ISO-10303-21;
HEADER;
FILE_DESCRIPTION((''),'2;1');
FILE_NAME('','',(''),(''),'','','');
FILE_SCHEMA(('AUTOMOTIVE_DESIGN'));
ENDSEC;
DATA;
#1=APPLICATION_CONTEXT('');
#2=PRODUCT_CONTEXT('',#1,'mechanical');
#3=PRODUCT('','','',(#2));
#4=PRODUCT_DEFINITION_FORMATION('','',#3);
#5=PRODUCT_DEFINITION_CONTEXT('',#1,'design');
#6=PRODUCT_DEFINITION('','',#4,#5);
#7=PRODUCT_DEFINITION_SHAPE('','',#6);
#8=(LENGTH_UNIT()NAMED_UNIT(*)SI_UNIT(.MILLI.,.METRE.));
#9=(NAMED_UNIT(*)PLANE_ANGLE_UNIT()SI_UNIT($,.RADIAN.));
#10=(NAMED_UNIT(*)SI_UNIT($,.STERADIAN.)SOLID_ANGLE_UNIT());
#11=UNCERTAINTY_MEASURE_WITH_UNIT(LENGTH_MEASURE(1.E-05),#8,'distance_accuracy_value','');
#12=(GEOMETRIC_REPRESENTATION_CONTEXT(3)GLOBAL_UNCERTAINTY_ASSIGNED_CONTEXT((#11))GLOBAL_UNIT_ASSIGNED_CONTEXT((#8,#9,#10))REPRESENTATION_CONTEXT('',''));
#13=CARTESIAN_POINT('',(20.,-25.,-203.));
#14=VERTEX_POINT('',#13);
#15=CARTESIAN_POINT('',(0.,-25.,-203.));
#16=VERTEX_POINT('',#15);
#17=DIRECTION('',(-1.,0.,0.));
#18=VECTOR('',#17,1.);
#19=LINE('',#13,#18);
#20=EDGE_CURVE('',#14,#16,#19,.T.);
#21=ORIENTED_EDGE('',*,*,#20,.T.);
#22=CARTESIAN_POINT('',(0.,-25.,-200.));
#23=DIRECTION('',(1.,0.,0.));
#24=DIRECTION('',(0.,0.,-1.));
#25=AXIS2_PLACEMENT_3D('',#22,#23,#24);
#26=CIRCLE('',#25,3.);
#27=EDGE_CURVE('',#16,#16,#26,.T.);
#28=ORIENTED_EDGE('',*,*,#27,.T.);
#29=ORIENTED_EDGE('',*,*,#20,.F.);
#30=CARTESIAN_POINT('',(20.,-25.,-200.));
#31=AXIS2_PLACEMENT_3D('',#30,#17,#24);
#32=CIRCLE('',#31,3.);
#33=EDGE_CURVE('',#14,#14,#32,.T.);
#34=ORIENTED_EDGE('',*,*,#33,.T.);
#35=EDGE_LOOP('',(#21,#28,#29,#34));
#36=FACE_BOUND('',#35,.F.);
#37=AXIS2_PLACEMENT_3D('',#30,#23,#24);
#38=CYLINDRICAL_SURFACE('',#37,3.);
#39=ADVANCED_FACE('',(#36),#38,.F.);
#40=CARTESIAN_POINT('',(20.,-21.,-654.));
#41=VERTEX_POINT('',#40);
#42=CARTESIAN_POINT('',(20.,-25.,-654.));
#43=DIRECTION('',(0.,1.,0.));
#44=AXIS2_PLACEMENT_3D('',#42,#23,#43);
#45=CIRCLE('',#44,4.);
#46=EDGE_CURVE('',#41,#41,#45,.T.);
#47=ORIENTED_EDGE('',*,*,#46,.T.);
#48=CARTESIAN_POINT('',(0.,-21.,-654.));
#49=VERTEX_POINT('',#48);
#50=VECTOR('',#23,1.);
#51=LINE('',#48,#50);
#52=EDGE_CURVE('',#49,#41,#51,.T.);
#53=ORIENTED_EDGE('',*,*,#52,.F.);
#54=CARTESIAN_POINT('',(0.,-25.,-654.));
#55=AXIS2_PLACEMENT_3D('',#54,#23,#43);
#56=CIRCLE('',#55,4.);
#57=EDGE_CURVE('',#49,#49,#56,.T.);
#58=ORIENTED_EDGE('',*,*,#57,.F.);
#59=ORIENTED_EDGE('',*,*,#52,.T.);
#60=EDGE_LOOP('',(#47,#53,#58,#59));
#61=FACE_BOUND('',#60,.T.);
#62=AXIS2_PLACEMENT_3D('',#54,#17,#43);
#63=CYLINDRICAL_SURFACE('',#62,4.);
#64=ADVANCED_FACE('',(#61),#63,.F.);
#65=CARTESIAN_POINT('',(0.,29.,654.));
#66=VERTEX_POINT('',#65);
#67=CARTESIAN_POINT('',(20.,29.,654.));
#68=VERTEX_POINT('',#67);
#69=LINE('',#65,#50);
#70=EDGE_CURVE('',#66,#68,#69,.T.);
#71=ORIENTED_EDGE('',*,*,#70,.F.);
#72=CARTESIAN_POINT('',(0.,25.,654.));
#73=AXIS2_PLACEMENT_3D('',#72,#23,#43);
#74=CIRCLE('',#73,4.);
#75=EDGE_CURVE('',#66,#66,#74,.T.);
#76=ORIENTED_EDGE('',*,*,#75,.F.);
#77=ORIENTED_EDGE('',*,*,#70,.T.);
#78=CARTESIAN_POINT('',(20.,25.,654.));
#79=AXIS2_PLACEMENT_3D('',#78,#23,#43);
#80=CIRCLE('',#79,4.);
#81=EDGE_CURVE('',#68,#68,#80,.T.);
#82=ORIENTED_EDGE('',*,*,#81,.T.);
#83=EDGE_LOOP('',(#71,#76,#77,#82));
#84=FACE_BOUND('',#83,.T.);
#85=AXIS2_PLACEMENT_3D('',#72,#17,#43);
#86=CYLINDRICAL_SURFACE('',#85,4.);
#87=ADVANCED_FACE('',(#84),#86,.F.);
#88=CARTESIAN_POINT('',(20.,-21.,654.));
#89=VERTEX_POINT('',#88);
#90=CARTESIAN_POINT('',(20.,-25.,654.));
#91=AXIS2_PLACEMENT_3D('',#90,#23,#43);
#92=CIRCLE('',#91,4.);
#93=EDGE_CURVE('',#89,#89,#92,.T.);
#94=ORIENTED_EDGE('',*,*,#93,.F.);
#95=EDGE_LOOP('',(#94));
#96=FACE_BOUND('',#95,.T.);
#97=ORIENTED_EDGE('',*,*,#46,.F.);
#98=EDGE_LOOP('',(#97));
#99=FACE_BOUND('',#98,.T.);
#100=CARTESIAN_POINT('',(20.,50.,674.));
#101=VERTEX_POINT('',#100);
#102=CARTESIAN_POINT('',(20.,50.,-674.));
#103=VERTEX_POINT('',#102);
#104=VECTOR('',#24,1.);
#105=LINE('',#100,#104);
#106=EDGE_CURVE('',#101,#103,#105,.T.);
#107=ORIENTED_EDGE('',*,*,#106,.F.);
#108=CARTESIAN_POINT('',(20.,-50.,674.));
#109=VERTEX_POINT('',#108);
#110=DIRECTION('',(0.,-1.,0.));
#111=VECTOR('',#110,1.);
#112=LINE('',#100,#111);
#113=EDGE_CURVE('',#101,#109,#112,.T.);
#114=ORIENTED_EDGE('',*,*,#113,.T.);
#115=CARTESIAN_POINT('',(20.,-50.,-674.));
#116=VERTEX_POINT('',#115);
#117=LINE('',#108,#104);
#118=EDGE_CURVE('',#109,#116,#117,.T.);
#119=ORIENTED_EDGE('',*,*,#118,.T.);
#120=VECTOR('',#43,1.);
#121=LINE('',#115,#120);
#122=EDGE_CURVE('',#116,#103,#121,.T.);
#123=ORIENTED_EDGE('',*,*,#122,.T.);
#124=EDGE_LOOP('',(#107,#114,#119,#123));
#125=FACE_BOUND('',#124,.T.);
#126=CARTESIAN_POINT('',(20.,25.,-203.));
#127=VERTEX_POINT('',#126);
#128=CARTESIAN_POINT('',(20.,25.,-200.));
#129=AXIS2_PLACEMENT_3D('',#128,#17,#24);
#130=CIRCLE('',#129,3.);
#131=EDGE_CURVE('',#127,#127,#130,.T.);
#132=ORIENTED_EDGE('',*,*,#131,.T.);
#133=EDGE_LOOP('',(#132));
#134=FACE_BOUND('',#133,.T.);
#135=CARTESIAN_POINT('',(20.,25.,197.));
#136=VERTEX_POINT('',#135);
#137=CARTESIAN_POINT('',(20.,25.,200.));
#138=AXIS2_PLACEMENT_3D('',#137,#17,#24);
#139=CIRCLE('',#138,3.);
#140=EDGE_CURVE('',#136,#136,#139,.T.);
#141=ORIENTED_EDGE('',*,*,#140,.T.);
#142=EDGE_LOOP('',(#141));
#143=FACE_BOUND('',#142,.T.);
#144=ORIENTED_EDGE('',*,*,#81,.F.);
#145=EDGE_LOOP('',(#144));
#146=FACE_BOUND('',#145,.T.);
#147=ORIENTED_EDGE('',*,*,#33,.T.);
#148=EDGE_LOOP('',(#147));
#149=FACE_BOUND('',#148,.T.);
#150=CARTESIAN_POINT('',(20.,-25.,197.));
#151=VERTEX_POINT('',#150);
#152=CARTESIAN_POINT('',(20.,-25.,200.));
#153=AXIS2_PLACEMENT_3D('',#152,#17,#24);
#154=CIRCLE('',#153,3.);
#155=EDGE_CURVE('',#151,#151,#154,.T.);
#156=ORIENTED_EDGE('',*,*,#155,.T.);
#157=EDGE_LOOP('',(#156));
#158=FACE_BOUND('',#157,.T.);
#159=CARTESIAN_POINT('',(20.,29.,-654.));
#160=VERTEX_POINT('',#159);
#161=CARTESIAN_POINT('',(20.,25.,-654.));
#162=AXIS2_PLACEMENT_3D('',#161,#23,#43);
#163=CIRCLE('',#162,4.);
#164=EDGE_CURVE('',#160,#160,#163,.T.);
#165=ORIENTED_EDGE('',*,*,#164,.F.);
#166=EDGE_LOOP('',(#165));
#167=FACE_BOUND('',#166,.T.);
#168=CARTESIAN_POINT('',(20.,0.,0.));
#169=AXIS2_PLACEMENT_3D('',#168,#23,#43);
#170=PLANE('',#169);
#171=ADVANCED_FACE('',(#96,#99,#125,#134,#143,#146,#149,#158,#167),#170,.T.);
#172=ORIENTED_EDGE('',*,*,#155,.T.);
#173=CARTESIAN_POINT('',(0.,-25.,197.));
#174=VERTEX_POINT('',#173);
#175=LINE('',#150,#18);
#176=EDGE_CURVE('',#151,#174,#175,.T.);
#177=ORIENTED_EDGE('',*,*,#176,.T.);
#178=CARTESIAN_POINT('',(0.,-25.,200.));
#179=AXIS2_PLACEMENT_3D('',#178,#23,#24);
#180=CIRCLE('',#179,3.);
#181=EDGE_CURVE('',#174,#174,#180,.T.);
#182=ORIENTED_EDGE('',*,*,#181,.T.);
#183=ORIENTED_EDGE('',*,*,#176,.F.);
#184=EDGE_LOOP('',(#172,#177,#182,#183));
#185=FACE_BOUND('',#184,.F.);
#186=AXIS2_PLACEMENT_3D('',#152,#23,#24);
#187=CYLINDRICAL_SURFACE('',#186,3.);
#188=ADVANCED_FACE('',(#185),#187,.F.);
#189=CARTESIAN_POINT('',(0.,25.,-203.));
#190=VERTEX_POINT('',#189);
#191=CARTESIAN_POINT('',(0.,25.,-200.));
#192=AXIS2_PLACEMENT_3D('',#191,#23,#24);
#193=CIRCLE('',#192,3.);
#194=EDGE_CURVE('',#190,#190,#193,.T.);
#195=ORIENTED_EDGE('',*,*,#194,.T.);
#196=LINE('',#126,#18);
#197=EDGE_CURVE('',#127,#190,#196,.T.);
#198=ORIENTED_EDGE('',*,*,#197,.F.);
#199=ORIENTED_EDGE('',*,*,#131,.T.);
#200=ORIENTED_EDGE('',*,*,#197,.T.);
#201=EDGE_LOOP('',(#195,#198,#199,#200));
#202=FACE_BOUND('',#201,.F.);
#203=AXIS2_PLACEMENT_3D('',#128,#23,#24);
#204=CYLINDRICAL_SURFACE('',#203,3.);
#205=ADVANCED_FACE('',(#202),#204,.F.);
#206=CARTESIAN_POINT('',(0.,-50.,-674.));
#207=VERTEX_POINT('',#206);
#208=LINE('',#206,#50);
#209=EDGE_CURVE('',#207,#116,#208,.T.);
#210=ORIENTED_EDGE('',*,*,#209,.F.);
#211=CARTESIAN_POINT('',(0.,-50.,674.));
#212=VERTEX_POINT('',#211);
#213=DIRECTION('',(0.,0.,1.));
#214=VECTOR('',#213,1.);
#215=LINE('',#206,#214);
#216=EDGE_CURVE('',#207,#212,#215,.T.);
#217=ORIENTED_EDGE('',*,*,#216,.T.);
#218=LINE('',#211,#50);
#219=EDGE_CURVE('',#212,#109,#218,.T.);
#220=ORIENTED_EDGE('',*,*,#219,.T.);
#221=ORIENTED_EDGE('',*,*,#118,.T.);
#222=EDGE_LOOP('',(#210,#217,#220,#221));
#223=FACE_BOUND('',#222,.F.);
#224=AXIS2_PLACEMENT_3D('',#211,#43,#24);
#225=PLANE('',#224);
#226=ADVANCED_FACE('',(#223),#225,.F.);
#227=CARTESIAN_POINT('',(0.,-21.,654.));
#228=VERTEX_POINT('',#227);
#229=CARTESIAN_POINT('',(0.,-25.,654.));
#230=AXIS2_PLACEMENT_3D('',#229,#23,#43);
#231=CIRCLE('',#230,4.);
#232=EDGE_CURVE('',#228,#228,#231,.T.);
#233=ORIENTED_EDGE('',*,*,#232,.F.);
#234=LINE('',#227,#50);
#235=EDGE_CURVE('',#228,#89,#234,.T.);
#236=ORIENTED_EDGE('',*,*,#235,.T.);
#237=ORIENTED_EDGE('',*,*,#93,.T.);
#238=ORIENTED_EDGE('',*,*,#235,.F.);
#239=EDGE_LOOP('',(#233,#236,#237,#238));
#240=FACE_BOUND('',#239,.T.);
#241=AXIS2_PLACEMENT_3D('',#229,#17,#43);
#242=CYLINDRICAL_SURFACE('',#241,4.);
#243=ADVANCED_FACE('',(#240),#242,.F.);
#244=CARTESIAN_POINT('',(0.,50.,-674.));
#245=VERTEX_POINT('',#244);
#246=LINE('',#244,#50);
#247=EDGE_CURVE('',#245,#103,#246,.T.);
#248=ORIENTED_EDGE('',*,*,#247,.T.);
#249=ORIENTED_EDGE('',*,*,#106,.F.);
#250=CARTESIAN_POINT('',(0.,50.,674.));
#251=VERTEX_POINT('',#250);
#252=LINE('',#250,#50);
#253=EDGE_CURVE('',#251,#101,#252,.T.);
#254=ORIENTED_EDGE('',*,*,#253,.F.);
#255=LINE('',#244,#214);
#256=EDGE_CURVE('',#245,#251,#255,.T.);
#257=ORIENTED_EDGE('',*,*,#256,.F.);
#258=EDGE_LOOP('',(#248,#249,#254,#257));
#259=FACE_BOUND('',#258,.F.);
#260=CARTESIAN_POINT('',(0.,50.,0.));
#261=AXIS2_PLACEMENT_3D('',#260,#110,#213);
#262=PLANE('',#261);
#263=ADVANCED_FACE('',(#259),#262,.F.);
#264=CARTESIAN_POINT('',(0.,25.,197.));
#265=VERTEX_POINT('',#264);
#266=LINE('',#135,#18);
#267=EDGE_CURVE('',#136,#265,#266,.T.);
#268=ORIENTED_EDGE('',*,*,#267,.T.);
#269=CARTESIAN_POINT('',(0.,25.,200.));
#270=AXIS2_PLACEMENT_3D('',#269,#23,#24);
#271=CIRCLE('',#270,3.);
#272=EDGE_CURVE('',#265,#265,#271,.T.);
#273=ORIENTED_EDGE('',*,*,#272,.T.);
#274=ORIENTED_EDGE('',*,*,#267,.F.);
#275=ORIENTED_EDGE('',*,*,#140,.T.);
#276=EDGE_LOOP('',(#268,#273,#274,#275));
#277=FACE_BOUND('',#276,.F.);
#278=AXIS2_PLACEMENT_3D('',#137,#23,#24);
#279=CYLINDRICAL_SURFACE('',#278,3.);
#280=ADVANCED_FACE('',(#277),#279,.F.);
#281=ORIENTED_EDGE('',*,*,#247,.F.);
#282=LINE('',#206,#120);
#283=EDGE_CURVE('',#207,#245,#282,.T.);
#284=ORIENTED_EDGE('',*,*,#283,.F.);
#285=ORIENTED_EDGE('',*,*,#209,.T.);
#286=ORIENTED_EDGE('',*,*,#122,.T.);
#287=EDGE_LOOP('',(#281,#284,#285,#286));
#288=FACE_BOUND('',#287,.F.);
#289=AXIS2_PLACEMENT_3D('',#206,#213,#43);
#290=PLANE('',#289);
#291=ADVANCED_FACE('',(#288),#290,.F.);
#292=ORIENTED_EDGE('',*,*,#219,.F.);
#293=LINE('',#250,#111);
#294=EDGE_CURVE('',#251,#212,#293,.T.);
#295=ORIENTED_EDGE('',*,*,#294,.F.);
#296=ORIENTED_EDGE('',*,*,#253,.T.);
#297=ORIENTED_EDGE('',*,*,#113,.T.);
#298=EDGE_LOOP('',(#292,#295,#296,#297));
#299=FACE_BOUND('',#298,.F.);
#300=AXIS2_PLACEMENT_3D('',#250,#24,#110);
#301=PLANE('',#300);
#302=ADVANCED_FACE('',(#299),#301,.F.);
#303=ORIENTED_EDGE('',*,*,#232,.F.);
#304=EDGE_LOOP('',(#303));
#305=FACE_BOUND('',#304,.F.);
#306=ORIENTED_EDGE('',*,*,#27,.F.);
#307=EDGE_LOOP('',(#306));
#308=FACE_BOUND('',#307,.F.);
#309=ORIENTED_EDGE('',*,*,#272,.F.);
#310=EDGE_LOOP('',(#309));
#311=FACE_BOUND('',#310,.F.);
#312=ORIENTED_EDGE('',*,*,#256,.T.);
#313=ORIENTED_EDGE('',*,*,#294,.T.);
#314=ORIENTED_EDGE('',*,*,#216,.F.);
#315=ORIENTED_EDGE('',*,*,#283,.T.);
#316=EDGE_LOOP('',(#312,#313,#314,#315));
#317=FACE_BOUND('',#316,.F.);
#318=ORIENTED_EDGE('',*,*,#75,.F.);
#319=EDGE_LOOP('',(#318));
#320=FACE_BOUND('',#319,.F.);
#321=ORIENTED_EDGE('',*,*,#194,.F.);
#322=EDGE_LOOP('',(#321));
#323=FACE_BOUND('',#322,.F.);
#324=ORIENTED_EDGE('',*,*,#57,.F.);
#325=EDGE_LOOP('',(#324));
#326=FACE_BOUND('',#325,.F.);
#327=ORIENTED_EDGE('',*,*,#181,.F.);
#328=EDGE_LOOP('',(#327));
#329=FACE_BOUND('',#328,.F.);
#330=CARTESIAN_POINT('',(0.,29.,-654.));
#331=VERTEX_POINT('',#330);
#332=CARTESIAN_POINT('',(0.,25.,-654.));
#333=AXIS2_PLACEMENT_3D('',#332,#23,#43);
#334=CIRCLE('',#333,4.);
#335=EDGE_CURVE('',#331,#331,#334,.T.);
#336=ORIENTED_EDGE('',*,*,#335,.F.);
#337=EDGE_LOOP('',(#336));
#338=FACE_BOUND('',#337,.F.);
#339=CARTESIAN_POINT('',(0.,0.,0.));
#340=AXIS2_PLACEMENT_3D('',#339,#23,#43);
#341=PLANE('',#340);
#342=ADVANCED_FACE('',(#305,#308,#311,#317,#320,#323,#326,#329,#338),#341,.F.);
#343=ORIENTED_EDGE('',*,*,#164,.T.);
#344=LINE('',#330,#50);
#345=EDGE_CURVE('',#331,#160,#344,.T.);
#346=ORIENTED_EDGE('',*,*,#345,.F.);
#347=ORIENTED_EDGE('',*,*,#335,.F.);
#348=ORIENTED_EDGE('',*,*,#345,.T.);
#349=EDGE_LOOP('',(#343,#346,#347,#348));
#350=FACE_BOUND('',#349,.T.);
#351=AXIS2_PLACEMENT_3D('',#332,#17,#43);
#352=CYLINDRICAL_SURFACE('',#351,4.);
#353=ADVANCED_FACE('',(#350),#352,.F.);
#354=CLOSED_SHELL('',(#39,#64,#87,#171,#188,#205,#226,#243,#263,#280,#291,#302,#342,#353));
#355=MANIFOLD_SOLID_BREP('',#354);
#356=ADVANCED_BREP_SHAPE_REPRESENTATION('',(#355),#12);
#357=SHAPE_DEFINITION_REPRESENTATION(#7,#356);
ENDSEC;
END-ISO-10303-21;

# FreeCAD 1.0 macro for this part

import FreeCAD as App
import Part
import Sketcher
Q = App.Units.Quantity

doc = App.newDocument("Part")
body = doc.addObject("PartDesign::Body", "Body")

sketch1 = body.newObject("Sketcher::SketchObject", "Sketch")
sketch1.AttachmentSupport = (doc.getObject("YZ_Plane"), [""])
sketch1.MapMode = "FlatFace"
sketch1.addGeometry(Part.LineSegment(App.Vector(50, 674, 0), App.Vector(-50, 674, 0)), False)
sketch1.addGeometry(Part.LineSegment(App.Vector(-50, 674, 0), App.Vector(-50, -674, 0)), False)
sketch1.addGeometry(Part.LineSegment(App.Vector(-50, -674, 0), App.Vector(50, -674, 0)), False)
sketch1.addGeometry(Part.LineSegment(App.Vector(50, -674, 0), App.Vector(50, 674, 0)), False)
sketch1.addGeometry(Part.Circle(App.Vector(-25, 654, 0), App.Vector(0, 0, 1), 4), False)
sketch1.addGeometry(Part.Circle(App.Vector(25, 654, 0), App.Vector(0, 0, 1), 4), False)
sketch1.addGeometry(Part.Circle(App.Vector(25, -654, 0), App.Vector(0, 0, 1), 4), False)
sketch1.addGeometry(Part.Circle(App.Vector(-25, -654, 0), App.Vector(0, 0, 1), 4), False)
sketch1.addConstraint(Sketcher.Constraint("Coincident", 0, 2, 1, 1))
sketch1.addConstraint(Sketcher.Constraint("Coincident", 1, 2, 2, 1))
sketch1.addConstraint(Sketcher.Constraint("Coincident", 2, 2, 3, 1))
sketch1.addConstraint(Sketcher.Constraint("Coincident", 3, 2, 0, 1))
sketch1.addConstraint(Sketcher.Constraint("Horizontal", 0))
sketch1.addConstraint(Sketcher.Constraint("Vertical", 1))
sketch1.addConstraint(Sketcher.Constraint("Horizontal", 2))
sketch1.addConstraint(Sketcher.Constraint("Vertical", 3))
sketch1.addConstraint(Sketcher.Constraint("Equal", 4, 5))
sketch1.addConstraint(Sketcher.Constraint("Equal", 5, 6))
sketch1.addConstraint(Sketcher.Constraint("Equal", 6, 7))
sketch1.addConstraint(Sketcher.Constraint("Symmetric", 4, 3, 6, 3, -1, 1))
sketch1.addConstraint(Sketcher.Constraint("Symmetric", 5, 3, 7, 3, -1, 1))
sketch1.addConstraint(Sketcher.Constraint("Symmetric", 0, 2, 2, 2, -1, 1))
sketch1.addConstraint(Sketcher.Constraint("Symmetric", 4, 3, 5, 3, -2))
sketch1.addConstraint(Sketcher.Constraint("Diameter", 4, Q("8 mm")))
sketch1.addConstraint(Sketcher.Constraint("DistanceX", 0, 2, 0, 1, Q("100 mm")))
sketch1.addConstraint(Sketcher.Constraint("DistanceY", 1, 2, 1, 1, Q("1348 mm")))
sketch1.addConstraint(Sketcher.Constraint("DistanceX", 4, 3, -1, 1, Q("25 mm")))
sketch1.addConstraint(Sketcher.Constraint("DistanceY", 4, 3, 0, 2, Q("20 mm")))
pad1 = body.newObject("PartDesign::Pad", "Pad")
pad1.Profile = sketch1
pad1.Length = 20

sketch2 = body.newObject("Sketcher::SketchObject", "Sketch001")
sketch2.AttachmentSupport = (doc.getObject("YZ_Plane"), [""])
sketch2.MapMode = "FlatFace"
sketch2.AttachmentOffset = App.Placement(App.Vector(0, 0, 20), App.Rotation())
sketch2.addGeometry(Part.Circle(App.Vector(25, 200, 0), App.Vector(0, 0, 1), 3), False)
sketch2.addGeometry(Part.Circle(App.Vector(25, -200, 0), App.Vector(0, 0, 1), 3), False)
sketch2.addGeometry(Part.Circle(App.Vector(-25, 200, 0), App.Vector(0, 0, 1), 3), False)
sketch2.addGeometry(Part.Circle(App.Vector(-25, -200, 0), App.Vector(0, 0, 1), 3), False)
sketch2.addConstraint(Sketcher.Constraint("Equal", 0, 1))
sketch2.addConstraint(Sketcher.Constraint("Equal", 1, 2))
sketch2.addConstraint(Sketcher.Constraint("Equal", 2, 3))
sketch2.addConstraint(Sketcher.Constraint("Symmetric", 1, 3, 2, 3, -1, 1))
sketch2.addConstraint(Sketcher.Constraint("Symmetric", 0, 3, 3, 3, -1, 1))
sketch2.addConstraint(Sketcher.Constraint("Symmetric", 0, 3, 2, 3, -2))
sketch2.addConstraint(Sketcher.Constraint("Diameter", 0, Q("6 mm")))
sketch2.addConstraint(Sketcher.Constraint("DistanceX", -1, 1, 0, 3, Q("25 mm")))
sketch2.addConstraint(Sketcher.Constraint("DistanceY", -1, 1, 0, 3, Q("200 mm")))
pocket1 = body.newObject("PartDesign::Pocket", "Pocket")
pocket1.Profile = sketch2
pocket1.Length = 50

doc.recompute()
